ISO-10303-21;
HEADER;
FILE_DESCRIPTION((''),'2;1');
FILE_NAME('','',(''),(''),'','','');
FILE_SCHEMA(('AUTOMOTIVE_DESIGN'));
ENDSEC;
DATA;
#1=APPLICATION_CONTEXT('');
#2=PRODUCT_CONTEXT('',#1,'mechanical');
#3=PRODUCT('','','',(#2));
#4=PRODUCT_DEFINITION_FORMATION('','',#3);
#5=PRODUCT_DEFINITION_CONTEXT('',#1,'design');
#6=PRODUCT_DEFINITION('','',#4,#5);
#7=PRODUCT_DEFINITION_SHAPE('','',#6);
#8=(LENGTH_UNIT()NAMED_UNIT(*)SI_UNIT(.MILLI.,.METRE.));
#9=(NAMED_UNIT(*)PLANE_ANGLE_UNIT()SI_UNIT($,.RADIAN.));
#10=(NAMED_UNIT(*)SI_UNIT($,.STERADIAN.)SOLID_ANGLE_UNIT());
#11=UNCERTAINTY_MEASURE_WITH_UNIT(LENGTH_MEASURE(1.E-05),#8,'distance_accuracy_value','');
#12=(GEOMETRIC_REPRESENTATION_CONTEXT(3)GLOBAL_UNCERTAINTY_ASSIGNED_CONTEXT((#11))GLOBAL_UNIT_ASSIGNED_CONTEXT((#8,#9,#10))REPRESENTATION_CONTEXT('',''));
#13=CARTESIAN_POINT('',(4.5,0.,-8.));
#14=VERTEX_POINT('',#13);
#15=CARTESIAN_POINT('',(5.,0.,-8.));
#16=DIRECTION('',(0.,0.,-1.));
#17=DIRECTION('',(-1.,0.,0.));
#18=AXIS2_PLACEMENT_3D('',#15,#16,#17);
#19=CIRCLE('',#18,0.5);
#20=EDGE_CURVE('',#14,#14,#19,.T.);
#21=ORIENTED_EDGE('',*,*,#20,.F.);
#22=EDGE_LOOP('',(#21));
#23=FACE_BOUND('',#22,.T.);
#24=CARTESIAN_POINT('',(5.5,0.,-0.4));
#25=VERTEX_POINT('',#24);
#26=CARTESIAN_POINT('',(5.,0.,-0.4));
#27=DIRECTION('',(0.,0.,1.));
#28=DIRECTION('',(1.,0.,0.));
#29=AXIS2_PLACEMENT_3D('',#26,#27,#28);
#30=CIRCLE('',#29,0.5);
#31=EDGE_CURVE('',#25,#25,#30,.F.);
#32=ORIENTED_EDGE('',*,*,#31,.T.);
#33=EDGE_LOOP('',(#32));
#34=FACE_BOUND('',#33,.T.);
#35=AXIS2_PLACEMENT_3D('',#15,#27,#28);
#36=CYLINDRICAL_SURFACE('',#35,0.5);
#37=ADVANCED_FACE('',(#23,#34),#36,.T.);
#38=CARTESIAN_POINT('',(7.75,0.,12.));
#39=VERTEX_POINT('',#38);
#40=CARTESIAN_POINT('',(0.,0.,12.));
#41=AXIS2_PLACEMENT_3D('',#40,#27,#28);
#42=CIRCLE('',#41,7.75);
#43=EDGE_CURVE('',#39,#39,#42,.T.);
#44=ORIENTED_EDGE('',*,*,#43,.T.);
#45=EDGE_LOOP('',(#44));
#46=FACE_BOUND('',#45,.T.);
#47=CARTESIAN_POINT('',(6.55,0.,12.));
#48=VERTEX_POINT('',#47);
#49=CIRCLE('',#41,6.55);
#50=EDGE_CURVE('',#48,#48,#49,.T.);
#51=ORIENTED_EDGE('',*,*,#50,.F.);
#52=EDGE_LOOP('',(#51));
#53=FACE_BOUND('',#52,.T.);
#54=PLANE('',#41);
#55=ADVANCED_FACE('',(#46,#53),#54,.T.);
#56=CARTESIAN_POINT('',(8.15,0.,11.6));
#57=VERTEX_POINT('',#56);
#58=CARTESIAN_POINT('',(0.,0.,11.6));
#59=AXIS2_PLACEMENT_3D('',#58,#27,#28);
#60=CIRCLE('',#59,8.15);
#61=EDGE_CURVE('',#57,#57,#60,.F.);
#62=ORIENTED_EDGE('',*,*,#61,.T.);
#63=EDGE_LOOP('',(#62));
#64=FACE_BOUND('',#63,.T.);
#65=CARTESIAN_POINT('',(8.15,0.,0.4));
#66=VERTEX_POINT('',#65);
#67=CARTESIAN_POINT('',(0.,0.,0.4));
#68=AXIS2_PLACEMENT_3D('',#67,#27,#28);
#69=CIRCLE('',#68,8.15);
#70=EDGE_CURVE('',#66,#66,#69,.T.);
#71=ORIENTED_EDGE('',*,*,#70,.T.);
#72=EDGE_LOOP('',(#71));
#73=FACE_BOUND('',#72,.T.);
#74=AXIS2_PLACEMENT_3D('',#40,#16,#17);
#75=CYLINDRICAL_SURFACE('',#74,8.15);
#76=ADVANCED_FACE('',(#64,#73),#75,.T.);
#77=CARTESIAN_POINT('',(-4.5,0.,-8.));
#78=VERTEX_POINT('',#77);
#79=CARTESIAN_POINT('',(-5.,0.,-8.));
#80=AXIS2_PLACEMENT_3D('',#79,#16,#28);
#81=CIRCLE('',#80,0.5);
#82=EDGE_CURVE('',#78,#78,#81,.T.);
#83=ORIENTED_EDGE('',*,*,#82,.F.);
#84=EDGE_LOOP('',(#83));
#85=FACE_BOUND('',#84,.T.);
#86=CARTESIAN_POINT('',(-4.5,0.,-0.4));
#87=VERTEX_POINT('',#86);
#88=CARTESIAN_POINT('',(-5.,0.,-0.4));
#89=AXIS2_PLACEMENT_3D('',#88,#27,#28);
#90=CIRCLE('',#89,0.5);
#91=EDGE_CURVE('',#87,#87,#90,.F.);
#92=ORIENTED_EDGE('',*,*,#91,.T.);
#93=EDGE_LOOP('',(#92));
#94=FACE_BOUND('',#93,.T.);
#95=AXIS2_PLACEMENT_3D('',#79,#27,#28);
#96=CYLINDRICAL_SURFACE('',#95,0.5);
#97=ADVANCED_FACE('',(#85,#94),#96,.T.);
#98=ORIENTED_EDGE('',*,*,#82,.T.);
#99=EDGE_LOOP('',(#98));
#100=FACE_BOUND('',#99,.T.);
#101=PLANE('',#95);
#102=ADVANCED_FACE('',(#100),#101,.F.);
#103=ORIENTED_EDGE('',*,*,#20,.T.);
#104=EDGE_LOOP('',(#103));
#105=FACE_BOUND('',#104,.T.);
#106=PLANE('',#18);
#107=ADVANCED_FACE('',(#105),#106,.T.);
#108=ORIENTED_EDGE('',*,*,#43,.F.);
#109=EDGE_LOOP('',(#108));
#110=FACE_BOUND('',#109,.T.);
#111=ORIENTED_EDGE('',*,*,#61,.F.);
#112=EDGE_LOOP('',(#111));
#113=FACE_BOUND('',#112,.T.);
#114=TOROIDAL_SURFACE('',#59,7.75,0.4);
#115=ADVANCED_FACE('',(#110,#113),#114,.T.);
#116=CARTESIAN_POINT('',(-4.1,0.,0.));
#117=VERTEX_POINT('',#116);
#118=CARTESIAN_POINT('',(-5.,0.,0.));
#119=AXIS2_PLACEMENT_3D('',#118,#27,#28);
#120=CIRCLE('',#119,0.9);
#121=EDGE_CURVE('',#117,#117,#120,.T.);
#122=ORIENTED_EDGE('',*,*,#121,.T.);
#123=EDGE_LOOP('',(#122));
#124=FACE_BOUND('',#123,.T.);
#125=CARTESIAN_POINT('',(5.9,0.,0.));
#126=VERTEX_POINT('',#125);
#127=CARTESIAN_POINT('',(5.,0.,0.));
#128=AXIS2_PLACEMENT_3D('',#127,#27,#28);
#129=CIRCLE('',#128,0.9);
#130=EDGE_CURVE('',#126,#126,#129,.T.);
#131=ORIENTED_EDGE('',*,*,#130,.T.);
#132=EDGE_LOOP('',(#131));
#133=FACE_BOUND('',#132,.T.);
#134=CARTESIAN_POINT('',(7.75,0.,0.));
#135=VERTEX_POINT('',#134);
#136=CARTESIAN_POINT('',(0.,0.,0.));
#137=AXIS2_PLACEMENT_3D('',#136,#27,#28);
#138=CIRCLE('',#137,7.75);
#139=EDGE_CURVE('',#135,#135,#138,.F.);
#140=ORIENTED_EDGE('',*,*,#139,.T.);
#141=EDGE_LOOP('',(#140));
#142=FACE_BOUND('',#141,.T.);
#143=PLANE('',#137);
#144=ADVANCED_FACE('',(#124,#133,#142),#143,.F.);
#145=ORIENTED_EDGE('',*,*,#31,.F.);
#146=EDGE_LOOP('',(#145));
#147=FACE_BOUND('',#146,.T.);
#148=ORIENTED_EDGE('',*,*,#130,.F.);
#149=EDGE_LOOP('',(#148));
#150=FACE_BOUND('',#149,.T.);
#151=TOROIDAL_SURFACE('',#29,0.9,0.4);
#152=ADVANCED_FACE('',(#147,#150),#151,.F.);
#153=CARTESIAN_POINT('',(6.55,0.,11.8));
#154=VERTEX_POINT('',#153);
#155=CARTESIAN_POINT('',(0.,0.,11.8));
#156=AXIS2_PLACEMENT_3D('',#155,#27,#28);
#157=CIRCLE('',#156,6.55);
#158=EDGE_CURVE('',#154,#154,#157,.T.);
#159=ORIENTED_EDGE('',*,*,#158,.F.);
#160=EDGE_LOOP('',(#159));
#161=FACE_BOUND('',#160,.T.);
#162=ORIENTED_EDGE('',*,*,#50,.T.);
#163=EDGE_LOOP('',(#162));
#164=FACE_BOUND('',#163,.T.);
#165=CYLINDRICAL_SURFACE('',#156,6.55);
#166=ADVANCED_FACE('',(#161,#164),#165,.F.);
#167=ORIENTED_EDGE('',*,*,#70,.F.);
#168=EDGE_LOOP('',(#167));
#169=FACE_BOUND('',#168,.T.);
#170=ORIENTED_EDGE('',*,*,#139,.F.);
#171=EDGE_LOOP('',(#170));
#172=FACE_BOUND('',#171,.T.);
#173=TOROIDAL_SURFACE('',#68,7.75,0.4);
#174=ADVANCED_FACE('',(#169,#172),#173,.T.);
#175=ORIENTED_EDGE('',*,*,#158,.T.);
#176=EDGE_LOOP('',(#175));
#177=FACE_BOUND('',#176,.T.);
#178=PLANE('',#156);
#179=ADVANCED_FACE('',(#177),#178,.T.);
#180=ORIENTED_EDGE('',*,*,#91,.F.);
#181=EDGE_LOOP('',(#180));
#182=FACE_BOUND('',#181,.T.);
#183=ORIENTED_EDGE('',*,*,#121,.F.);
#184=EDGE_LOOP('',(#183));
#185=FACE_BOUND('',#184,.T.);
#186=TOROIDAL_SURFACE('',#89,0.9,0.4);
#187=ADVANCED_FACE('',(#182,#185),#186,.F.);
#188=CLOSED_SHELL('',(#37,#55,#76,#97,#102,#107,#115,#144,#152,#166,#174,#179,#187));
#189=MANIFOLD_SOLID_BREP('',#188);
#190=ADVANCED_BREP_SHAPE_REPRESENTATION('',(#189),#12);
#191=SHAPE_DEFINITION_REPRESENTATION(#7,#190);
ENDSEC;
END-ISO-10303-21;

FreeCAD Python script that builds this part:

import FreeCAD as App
import Part
import Sketcher
from FreeCAD import Vector
Q = App.Units.Quantity


def edges_at(feature, points):
    """Names of the edges that pass closest to the given points."""
    edges = feature.Shape.Edges
    near = lambda p: min(range(len(edges)), key=lambda i: edges[i].distToShape(Part.Vertex(*p))[0])
    return sorted({f"Edge{near(p) + 1}" for p in points})

doc = App.newDocument("Part")
body = doc.addObject("PartDesign::Body", "Body")

sketch1 = doc.addObject("Sketcher::SketchObject", "Sketch")
body.addObject(sketch1)
sketch1.AttachmentSupport = (doc.XY_Plane, [""])
sketch1.MapMode = "FlatFace"
sketch1.addGeometry(Part.Circle(Vector(0, 0, 0), Vector(0, 0, 1), 8), False)
sketch1.addConstraint([
    Sketcher.Constraint("Coincident", 0, 3, -1, 1),
    Sketcher.Constraint("Diameter", 0, Q("16.3 mm")),
])
pad1 = doc.addObject("PartDesign::Pad", "Pad")
body.addObject(pad1)
pad1.Profile = sketch1
pad1.Length = 12

sketch2 = doc.addObject("Sketcher::SketchObject", "Sketch001")
body.addObject(sketch2)
sketch2.AttachmentSupport = (doc.XY_Plane, [""])
sketch2.MapMode = "FlatFace"
sketch2.addGeometry([
    Part.Circle(Vector(5, 0, 0), Vector(0, 0, 1), 0.5),
    Part.Circle(Vector(-5, 0, 0), Vector(0, 0, 1), 0.5),
], False)
sketch2.addConstraint([
    Sketcher.Constraint("Equal", 0, 1),
    Sketcher.Constraint("Symmetric", 0, 3, 1, 3, -1, 1),
    Sketcher.Constraint("PointOnObject", 0, 3, -1),
    Sketcher.Constraint("Diameter", 0, Q("1 mm")),
    Sketcher.Constraint("DistanceX", -1, 1, 0, 3, Q("5 mm")),
])
pad2 = doc.addObject("PartDesign::Pad", "Pad001")
body.addObject(pad2)
pad2.Profile = sketch2
pad2.Length = 8
pad2.Reversed = True
doc.recompute()

fillet = doc.addObject("PartDesign::Fillet", "Fillet")
body.addObject(fillet)
fillet.Base = (pad2, edges_at(pad2, [
    (-8.15, 0, 0),
    (-8.15, 0, 12),
    (5.5, 0, 0),
    (-4.5, 0, 0),
]))
fillet.Radius = 0.4

sketch3 = doc.addObject("Sketcher::SketchObject", "Sketch002")
body.addObject(sketch3)
sketch3.AttachmentSupport = (doc.XY_Plane, [""])
sketch3.MapMode = "FlatFace"
sketch3.AttachmentOffset = App.Placement(Vector(0, 0, 12), App.Rotation())
sketch3.addGeometry(Part.Circle(Vector(0, 0, 0), Vector(0, 0, 1), 7), False)
sketch3.addConstraint([
    Sketcher.Constraint("Coincident", 0, 3, -1, 1),
    Sketcher.Constraint("Diameter", 0, Q("13.1 mm")),
])
pocket1 = doc.addObject("PartDesign::Pocket", "Pocket")
body.addObject(pocket1)
pocket1.Profile = sketch3
pocket1.Length = 0.2

doc.recompute()
